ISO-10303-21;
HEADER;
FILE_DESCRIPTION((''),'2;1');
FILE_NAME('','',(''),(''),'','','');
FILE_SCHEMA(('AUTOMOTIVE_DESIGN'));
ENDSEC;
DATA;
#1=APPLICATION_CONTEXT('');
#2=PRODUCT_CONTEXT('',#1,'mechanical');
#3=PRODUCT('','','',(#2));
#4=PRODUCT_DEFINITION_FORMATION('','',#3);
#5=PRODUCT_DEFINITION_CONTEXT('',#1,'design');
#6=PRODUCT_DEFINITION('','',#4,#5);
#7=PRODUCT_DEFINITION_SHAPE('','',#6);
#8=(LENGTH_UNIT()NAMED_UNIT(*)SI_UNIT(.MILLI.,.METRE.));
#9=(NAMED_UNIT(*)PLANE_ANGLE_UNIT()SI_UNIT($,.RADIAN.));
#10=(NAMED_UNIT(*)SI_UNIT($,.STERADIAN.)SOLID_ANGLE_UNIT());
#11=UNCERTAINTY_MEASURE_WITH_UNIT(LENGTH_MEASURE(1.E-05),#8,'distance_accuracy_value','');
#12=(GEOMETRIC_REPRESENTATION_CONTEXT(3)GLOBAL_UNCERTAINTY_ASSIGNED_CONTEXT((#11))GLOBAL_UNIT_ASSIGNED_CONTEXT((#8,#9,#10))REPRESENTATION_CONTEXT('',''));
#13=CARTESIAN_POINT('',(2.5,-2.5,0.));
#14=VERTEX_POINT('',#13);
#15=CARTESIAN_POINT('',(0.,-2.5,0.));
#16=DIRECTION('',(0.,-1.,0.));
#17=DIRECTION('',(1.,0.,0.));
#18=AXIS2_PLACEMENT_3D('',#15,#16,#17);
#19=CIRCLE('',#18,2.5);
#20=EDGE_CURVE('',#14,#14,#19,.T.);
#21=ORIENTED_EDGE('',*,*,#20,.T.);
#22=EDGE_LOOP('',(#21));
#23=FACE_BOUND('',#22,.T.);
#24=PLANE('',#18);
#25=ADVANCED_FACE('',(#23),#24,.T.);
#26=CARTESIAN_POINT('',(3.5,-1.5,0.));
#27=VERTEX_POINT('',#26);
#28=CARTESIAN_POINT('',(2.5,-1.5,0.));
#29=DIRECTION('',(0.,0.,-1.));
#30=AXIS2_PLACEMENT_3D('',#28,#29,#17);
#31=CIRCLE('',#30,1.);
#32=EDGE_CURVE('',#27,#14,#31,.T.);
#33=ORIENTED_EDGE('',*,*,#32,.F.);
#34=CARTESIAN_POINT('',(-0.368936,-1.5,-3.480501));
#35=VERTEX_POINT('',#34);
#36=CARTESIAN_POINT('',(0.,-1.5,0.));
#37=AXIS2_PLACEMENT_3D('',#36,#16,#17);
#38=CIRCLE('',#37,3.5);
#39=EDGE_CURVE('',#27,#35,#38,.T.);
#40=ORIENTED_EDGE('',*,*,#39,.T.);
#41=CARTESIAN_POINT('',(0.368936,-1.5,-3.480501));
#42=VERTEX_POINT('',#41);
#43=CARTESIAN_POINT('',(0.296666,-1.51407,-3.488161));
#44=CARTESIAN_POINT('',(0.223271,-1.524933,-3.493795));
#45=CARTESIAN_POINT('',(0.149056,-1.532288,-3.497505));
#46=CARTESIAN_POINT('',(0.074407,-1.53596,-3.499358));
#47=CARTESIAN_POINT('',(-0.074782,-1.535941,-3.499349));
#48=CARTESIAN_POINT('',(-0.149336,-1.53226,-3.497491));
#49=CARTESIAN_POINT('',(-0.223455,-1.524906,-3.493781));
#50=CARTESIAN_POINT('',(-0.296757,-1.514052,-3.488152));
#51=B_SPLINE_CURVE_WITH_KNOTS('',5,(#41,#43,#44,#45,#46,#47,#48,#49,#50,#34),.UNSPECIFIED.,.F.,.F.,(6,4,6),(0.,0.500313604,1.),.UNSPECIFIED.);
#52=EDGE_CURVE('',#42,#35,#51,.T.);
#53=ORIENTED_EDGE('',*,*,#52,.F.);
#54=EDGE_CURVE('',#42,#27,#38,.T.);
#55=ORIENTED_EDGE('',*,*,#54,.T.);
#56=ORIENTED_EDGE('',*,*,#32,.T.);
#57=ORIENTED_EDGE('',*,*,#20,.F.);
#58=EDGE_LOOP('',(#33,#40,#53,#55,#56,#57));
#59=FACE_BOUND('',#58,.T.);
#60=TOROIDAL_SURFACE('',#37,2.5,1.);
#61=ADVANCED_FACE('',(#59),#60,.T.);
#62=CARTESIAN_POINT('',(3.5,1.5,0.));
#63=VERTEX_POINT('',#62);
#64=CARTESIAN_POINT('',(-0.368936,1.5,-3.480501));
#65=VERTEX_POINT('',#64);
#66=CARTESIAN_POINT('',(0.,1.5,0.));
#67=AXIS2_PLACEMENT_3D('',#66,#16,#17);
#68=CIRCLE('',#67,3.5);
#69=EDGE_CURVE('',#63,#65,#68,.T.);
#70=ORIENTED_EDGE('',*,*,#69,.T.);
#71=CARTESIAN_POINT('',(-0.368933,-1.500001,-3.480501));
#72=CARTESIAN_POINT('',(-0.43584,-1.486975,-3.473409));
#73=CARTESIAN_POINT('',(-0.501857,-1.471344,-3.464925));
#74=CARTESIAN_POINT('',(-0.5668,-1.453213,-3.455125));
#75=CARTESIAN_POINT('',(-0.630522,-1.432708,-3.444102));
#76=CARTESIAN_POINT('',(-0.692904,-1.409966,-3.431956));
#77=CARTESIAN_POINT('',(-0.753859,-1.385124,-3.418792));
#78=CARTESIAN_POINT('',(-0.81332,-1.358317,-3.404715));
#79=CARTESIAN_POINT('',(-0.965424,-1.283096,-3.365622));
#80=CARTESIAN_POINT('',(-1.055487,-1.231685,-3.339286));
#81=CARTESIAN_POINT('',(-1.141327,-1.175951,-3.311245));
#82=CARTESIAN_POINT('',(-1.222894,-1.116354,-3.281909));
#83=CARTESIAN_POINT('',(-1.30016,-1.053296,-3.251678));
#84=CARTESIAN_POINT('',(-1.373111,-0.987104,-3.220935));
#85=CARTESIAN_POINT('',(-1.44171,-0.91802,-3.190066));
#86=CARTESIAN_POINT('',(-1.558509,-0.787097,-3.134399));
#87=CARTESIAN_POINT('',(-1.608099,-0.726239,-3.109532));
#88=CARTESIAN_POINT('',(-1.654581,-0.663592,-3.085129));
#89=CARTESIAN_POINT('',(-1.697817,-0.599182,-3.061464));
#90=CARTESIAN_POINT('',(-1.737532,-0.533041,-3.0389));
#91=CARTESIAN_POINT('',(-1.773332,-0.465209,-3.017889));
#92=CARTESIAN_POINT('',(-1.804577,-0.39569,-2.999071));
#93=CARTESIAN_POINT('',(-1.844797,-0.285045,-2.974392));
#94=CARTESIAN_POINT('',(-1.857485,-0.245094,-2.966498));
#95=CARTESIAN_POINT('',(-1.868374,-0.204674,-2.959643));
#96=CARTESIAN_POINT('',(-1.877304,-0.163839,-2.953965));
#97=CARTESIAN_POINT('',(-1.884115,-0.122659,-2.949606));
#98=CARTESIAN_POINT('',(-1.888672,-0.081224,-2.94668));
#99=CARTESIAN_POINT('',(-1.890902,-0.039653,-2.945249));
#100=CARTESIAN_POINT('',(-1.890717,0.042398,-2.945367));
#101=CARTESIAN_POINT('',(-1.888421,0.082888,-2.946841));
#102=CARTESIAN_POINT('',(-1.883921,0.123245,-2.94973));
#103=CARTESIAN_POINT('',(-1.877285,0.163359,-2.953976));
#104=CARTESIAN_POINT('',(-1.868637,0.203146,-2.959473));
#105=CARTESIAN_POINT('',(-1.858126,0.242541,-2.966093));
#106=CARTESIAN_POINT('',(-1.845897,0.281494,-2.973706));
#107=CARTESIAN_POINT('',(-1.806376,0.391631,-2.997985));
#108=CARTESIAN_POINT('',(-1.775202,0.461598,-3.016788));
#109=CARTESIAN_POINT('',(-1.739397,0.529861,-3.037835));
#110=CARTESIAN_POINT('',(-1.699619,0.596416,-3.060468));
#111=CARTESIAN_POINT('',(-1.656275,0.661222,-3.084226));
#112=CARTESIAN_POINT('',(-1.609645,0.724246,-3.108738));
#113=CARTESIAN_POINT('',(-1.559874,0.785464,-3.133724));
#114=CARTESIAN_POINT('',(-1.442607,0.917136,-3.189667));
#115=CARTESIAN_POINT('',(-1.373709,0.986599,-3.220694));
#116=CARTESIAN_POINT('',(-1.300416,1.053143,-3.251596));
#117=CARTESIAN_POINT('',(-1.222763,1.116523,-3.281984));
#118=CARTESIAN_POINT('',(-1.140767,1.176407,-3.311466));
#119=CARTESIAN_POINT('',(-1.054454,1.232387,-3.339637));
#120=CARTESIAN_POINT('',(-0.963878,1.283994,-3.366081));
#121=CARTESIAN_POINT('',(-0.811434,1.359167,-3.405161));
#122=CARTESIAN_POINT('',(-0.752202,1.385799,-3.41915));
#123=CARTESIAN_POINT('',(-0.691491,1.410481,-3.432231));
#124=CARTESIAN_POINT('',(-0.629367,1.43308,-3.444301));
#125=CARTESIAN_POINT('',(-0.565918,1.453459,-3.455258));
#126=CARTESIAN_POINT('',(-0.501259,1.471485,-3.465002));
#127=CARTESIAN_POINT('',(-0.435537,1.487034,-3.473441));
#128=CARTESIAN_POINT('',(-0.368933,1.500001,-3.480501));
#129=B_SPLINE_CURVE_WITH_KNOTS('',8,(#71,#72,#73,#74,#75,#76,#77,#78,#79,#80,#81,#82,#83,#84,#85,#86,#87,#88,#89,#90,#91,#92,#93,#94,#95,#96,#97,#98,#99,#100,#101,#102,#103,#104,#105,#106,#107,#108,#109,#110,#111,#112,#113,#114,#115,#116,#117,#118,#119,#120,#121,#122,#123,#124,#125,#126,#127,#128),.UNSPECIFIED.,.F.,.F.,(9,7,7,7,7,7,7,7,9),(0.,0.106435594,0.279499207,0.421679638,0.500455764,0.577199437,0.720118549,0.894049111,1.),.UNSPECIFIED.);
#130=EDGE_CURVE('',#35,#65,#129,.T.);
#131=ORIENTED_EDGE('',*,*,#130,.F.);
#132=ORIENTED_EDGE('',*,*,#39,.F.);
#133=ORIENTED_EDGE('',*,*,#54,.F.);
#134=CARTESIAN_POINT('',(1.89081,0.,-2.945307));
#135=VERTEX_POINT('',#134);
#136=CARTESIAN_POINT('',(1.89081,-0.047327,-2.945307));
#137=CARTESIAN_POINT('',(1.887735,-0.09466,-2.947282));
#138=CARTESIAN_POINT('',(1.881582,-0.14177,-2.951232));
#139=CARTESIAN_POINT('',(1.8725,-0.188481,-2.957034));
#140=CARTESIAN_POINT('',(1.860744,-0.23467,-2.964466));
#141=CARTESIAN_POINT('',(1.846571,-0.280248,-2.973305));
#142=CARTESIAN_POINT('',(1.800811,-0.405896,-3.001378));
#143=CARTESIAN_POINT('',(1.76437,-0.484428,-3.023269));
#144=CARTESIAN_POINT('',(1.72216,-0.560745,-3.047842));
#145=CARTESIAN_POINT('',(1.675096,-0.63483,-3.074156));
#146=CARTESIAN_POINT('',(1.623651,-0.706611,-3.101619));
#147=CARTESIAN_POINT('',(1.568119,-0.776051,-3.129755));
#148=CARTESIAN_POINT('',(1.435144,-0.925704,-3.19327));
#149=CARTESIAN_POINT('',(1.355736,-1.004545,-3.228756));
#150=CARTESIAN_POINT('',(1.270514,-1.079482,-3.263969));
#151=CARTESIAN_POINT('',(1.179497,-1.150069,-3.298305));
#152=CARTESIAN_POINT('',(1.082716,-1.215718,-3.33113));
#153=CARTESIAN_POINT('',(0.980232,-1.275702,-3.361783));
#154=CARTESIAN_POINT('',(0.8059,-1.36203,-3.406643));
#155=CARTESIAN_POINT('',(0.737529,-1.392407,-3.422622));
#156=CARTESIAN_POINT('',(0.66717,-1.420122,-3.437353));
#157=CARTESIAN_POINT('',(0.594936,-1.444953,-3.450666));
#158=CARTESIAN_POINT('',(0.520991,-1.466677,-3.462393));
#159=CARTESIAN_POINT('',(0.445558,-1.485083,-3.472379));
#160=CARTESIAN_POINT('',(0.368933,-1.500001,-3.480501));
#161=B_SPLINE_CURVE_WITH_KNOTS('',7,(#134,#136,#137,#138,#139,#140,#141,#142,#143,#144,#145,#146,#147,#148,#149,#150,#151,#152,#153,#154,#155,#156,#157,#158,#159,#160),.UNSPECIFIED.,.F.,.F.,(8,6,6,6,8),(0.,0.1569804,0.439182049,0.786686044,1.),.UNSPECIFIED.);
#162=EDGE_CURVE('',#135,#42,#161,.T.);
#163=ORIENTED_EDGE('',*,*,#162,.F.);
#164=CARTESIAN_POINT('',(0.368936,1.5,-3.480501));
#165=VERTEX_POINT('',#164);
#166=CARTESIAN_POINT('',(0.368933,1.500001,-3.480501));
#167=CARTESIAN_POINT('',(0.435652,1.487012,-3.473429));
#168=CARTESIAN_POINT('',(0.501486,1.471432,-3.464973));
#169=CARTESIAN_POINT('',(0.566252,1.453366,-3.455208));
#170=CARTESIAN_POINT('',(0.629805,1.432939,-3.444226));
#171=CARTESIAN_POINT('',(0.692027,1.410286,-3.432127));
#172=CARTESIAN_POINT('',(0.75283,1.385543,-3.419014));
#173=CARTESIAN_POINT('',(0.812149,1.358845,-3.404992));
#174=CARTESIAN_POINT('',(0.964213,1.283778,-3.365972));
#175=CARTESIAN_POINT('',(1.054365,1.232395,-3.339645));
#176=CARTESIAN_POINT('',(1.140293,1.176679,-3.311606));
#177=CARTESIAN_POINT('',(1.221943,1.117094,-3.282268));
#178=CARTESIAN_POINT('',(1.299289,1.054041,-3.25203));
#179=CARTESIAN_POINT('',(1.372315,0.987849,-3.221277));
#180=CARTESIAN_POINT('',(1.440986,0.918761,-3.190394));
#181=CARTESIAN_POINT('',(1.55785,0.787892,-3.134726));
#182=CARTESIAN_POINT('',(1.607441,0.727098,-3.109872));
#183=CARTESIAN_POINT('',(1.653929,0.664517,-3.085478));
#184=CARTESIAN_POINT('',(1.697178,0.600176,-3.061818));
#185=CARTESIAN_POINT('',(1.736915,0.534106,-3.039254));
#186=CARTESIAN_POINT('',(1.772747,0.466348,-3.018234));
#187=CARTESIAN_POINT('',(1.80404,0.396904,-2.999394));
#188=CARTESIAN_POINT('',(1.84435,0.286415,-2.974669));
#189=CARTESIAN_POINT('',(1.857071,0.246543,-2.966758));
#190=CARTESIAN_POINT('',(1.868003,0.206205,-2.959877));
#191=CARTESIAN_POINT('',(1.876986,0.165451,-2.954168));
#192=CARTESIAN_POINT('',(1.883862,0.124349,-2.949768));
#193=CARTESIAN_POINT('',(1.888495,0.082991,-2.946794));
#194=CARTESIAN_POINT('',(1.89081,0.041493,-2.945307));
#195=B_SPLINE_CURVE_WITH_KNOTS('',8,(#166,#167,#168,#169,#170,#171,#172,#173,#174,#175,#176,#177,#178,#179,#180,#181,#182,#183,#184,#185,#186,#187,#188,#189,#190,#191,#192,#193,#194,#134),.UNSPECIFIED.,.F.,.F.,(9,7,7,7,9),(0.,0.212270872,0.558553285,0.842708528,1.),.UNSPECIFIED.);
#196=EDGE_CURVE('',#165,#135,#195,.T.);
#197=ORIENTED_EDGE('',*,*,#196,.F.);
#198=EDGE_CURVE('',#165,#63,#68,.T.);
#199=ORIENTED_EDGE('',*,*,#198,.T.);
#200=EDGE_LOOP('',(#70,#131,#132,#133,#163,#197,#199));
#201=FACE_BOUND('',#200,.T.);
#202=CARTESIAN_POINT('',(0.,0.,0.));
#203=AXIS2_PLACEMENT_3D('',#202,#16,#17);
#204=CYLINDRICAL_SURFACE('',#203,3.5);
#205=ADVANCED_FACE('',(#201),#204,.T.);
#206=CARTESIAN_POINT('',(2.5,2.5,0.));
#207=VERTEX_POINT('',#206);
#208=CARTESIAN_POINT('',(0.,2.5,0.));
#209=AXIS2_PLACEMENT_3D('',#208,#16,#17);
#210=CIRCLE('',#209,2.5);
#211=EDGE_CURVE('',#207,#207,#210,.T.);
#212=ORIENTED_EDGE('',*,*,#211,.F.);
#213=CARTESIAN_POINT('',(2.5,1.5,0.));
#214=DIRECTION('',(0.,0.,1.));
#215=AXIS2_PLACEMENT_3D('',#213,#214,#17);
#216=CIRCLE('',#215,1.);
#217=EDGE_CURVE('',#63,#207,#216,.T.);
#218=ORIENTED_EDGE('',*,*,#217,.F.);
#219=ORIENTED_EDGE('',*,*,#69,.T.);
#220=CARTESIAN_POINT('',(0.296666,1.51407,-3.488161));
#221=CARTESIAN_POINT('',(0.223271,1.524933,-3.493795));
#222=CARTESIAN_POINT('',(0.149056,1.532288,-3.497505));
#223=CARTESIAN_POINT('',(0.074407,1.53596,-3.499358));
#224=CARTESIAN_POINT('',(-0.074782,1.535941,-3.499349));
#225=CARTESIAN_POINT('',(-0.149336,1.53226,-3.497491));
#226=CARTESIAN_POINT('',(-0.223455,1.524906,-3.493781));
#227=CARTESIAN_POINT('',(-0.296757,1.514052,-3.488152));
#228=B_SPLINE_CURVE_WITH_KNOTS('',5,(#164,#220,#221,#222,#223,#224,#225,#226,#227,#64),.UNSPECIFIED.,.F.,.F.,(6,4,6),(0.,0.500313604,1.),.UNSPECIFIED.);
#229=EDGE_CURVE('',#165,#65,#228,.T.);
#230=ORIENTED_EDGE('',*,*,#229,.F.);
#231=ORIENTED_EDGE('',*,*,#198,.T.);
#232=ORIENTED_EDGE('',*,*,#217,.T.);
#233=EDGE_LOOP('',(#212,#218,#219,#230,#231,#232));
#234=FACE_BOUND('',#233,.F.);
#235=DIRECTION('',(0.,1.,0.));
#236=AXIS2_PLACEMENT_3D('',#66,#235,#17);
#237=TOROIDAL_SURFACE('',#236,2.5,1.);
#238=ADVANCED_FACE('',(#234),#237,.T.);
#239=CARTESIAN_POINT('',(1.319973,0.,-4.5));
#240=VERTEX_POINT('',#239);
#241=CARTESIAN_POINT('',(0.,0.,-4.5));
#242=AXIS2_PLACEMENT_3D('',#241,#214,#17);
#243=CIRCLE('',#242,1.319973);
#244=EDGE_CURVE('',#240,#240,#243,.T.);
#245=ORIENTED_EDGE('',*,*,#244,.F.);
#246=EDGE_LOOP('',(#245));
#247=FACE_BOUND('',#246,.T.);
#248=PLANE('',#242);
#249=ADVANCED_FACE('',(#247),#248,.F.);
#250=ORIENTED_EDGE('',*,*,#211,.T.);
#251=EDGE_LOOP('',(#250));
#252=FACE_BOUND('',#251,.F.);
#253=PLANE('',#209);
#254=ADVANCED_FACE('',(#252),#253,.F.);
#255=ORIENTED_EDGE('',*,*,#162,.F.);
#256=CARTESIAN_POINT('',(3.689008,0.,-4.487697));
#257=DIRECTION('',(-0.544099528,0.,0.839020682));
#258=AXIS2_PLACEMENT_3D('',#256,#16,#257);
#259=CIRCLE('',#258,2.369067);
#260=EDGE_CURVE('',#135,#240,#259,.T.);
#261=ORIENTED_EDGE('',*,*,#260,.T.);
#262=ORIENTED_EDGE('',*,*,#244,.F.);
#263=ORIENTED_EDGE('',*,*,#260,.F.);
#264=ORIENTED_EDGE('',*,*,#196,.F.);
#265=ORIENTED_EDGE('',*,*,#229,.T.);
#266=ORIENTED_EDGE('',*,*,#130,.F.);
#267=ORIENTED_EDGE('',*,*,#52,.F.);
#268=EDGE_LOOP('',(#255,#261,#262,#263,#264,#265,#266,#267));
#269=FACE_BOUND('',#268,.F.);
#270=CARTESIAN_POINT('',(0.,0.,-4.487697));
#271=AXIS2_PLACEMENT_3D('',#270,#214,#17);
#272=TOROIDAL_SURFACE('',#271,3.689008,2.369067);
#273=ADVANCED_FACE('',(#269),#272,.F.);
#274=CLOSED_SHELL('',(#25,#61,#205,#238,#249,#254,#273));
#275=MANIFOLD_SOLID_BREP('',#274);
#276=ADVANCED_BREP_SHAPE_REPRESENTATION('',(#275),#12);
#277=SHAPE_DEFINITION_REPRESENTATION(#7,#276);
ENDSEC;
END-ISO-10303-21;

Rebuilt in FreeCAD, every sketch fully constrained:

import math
import FreeCAD as App
import Part
import Sketcher
from FreeCAD import Vector


def edges_at(feature, points):
    """Names of the edges that pass closest to the given points."""
    edges = feature.Shape.Edges
    near = lambda p: min(range(len(edges)), key=lambda i: edges[i].distToShape(Part.Vertex(*p))[0])
    return sorted({f"Edge{near(p) + 1}" for p in points})

doc = App.newDocument("Part")
body = doc.addObject("PartDesign::Body", "Body")

# Sketch on XZ plane
sketch1 = body.newObject("Sketcher::SketchObject", "Sketch")
sketch1.AttachmentSupport = (doc.getObject("XZ_Plane"), [""])
sketch1.MapMode = "FlatFace"
sketch1.addGeometry(Part.Circle(Vector(0, 0, 0), Vector(0, 0, 1), 3.5), False)
sketch1.addConstraint([
    Sketcher.Constraint("Coincident", 0, 3, -1, 1),
    Sketcher.Constraint("Diameter", 0, 7.0),
])
pad1 = body.newObject("PartDesign::Pad", "Pad")
pad1.Profile = sketch1
pad1.Type = "TwoLengths"
pad1.Length = 2.5
pad1.Length2 = 2.5
doc.recompute()

fillet = body.newObject("PartDesign::Fillet", "Fillet")
fillet.Base = (pad1, edges_at(pad1, [(-3.5, -2.5, 0)]))
fillet.Radius = 1
doc.recompute()

fillet2 = body.newObject("PartDesign::Fillet", "Fillet001")
fillet2.Base = (fillet, edges_at(fillet, [(-3.5, 2.5, 0)]))
fillet2.Radius = 1

# Sketch on XZ plane
sketch2 = body.newObject("Sketcher::SketchObject", "Sketch001")
sketch2.AttachmentSupport = (doc.getObject("XZ_Plane"), [""])
sketch2.MapMode = "FlatFace"
sketch2.addGeometry([
    Part.LineSegment(Vector(2.4, -2.5, 0), Vector(0, -2.5, 0)),
    Part.LineSegment(Vector(0, -2.5, 0), Vector(0, -4.5, 0)),
    Part.LineSegment(Vector(0, -4.5, 0), Vector(1.319973, -4.5, 0)),
    Part.ArcOfCircle(Part.Circle(Vector(3.689008, -4.487697, 0), Vector(0, 0, 1), 2.369067), math.radians(122.96315), math.radians(180.29756)),
], False)
sketch2.addConstraint([
    Sketcher.Constraint("Coincident", 0, 2, 1, 1),
    Sketcher.Constraint("Coincident", 1, 2, 2, 1),
    Sketcher.Constraint("Coincident", 2, 2, 3, 2),
    Sketcher.Constraint("Coincident", 3, 1, 0, 1),
    Sketcher.Constraint("Horizontal", 0),
    Sketcher.Constraint("Vertical", 1),
    Sketcher.Constraint("Horizontal", 2),
    Sketcher.Constraint("PointOnObject", 0, 2, -2),
    Sketcher.Constraint("DistanceY", 1, 2, 1, 1, 2.0),
    Sketcher.Constraint("DistanceX", 0, 2, 0, 1, 2.4),
    Sketcher.Constraint("DistanceY", 0, 2, -1, 1, 2.5),
    Sketcher.Constraint("Radius", 3, 2.369067),
    Sketcher.Constraint("DistanceX", 2, 1, 2, 2, 1.319973),
])
revolution = body.newObject("PartDesign::Revolution", "Revolution")
revolution.Profile = sketch2
revolution.ReferenceAxis = (sketch2, ["V_Axis"])
revolution.Angle = 360

doc.recompute()
